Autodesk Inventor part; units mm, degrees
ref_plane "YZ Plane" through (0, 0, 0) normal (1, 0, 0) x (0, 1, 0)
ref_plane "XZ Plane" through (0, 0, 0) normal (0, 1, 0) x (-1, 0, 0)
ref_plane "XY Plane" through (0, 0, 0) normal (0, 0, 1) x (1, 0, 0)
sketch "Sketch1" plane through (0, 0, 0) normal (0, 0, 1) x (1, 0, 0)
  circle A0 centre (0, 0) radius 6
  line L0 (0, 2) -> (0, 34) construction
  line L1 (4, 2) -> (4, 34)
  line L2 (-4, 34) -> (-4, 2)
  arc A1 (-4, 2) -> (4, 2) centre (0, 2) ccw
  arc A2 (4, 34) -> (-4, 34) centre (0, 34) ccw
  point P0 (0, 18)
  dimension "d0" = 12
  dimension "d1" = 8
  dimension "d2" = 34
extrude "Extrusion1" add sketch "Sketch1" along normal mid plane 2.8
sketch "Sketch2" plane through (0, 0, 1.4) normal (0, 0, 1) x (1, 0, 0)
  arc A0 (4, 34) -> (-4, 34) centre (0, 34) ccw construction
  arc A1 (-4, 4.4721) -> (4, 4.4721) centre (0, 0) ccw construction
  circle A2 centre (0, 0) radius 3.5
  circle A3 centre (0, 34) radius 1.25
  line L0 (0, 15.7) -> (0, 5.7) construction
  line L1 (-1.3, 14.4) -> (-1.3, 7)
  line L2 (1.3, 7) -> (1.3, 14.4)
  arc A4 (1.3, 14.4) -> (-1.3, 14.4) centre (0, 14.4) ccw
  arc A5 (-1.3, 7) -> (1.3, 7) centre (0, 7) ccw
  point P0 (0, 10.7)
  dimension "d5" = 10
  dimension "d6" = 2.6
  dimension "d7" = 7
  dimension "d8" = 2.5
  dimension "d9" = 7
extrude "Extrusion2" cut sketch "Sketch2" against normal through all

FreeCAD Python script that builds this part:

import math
import FreeCAD as App
import Part
import Sketcher
Q = App.Units.Quantity

doc = App.newDocument("Part")
params = doc.addObject("Spreadsheet::Sheet", "Params")
for row, (alias, value) in enumerate([
    ("sketch1_radius", "6 mm"),
    ("sketch1_radius2", "4 mm"),
    ("pad1_length", "2.8 mm"),
    ("sketch2_diameter", "7 mm"),
    ("sketch2_diameter2", "2.5 mm"),
    ("sketch2_radius", "1.3 mm"),
    ("sketch2_height", "7.4 mm"),
], start=1):
    params.set(f"A{row}", alias)
    params.set(f"B{row}", "=" + value)
    params.setAlias(f"B{row}", alias)

body = doc.addObject("PartDesign::Body", "Body")

sketch1 = body.newObject("Sketcher::SketchObject", "Sketch")
sketch1.AttachmentSupport = (doc.getObject("XY_Plane"), [""])
sketch1.MapMode = "FlatFace"
sketch1.addGeometry([
    Part.ArcOfCircle(Part.Circle(App.Vector(0, 0, 0), App.Vector(0, 0, 1), 6), math.radians(132), math.radians(408)),
    Part.LineSegment(App.Vector(4, 4.5, 0), App.Vector(4, 34, 0)),
    Part.ArcOfCircle(Part.Circle(App.Vector(0, 34, 0), App.Vector(0, 0, 1), 4), math.radians(0), math.radians(180)),
    Part.LineSegment(App.Vector(-4, 34, 0), App.Vector(-4, 4.5, 0)),
], False)
sketch1.addConstraint([
    Sketcher.Constraint("Coincident", 0, 2, 1, 1),
    Sketcher.Constraint("Tangent", 1, 2, 2, 1),
    Sketcher.Constraint("Tangent", 2, 2, 3, 1),
    Sketcher.Constraint("Coincident", 3, 2, 0, 1),
    Sketcher.Constraint("Vertical", 1),
    Sketcher.Constraint("Vertical", 3),
    Sketcher.Constraint("Coincident", 0, 3, -1, 1),
    Sketcher.Constraint("PointOnObject", 2, 3, -2),
    Sketcher.Constraint("Radius", 0, Q("6 mm")),
    Sketcher.Constraint("Radius", 2, Q("4 mm")),
    Sketcher.Constraint("DistanceY", -1, 1, 2, 3, Q("34 mm")),
])
sketch1.setExpression("Constraints[8]", "Params.sketch1_radius")
sketch1.setExpression("Constraints[9]", "Params.sketch1_radius2")
pad1 = body.newObject("PartDesign::Pad", "Pad")
pad1.Profile = sketch1
pad1.setExpression("Length", "Params.pad1_length")
pad1.Midplane = True

sketch2 = body.newObject("Sketcher::SketchObject", "Sketch001")
sketch2.AttachmentSupport = (doc.getObject("XY_Plane"), [""])
sketch2.MapMode = "FlatFace"
sketch2.AttachmentOffset = App.Placement(App.Vector(0, 0, 1.4), App.Rotation())
sketch2.addGeometry([
    Part.Circle(App.Vector(0, 0, 0), App.Vector(0, 0, 1), 3.5),
    Part.Circle(App.Vector(0, 34, 0), App.Vector(0, 0, 1), 1.2),
    Part.ArcOfCircle(Part.Circle(App.Vector(0, 14.4, 0), App.Vector(0, 0, 1), 1.3), math.radians(0), math.radians(180)),
    Part.LineSegment(App.Vector(-1.3, 14.4, 0), App.Vector(-1.3, 7, 0)),
    Part.ArcOfCircle(Part.Circle(App.Vector(0, 7, 0), App.Vector(0, 0, 1), 1.3), math.radians(180), math.radians(360)),
    Part.LineSegment(App.Vector(1.3, 7, 0), App.Vector(1.3, 14.4, 0)),
], False)
sketch2.addConstraint([
    Sketcher.Constraint("Tangent", 2, 2, 3, 1),
    Sketcher.Constraint("Tangent", 3, 2, 4, 1),
    Sketcher.Constraint("Tangent", 4, 2, 5, 1),
    Sketcher.Constraint("Tangent", 5, 2, 2, 1),
    Sketcher.Constraint("Vertical", 3),
    Sketcher.Constraint("Vertical", 5),
    Sketcher.Constraint("Coincident", 0, 3, -1, 1),
    Sketcher.Constraint("PointOnObject", 1, 3, -2),
    Sketcher.Constraint("PointOnObject", 2, 3, -2),
    Sketcher.Constraint("Diameter", 0, Q("7 mm")),
    Sketcher.Constraint("Diameter", 1, Q("2.5 mm")),
    Sketcher.Constraint("Radius", 2, Q("1.3 mm")),
    Sketcher.Constraint("DistanceY", -1, 1, 4, 3, Q("7 mm")),
    Sketcher.Constraint("DistanceY", 3, 2, 3, 1, Q("7.4 mm")),
    Sketcher.Constraint("DistanceY", -1, 1, 1, 3, Q("34 mm")),
])
sketch2.setExpression("Constraints[9]", "Params.sketch2_diameter")
sketch2.setExpression("Constraints[10]", "Params.sketch2_diameter2")
sketch2.setExpression("Constraints[11]", "Params.sketch2_radius")
sketch2.setExpression("Constraints[13]", "Params.sketch2_height")
pocket1 = body.newObject("PartDesign::Pocket", "Pocket")
pocket1.Profile = sketch2
pocket1.Type = "ThroughAll"

doc.recompute()
